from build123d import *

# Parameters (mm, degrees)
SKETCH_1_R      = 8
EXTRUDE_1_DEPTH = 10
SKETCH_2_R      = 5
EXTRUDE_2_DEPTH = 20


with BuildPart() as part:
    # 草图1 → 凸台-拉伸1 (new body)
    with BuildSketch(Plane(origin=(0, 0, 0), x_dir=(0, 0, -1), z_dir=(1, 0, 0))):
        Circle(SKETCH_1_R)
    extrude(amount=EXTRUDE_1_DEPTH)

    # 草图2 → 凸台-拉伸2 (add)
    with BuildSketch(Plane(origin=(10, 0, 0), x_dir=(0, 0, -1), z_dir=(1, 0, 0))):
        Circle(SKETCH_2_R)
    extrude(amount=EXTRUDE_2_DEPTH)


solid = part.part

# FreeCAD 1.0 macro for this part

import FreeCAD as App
import Part
import Sketcher

V = App.Vector

doc = App.newDocument("Part")
body = doc.addObject("PartDesign::Body", "Body")

# Sketch on YZ plane
sketch1 = doc.addObject("Sketcher::SketchObject", "Sketch")
body.addObject(sketch1)
sketch1.AttachmentSupport = (doc.YZ_Plane, [""])
sketch1.MapMode = "FlatFace"
sketch1.addGeometry(Part.Circle(V(0, 0, 0), V(0, 0, 1), 8), False)
sketch1.addConstraint(Sketcher.Constraint("Coincident", 0, 3, -1, 1))
sketch1.addConstraint(Sketcher.Constraint("Diameter", 0, 16.0))
pad1 = doc.addObject("PartDesign::Pad", "Pad")
body.addObject(pad1)
pad1.Profile = sketch1
pad1.Length = 10

# Sketch on YZ plane
sketch2 = doc.addObject("Sketcher::SketchObject", "Sketch001")
body.addObject(sketch2)
sketch2.AttachmentSupport = (doc.YZ_Plane, [""])
sketch2.MapMode = "FlatFace"
sketch2.AttachmentOffset = App.Placement(V(0, 0, 10), App.Rotation())
sketch2.addGeometry(Part.Circle(V(0, 0, 0), V(0, 0, 1), 5), False)
sketch2.addConstraint(Sketcher.Constraint("Coincident", 0, 3, -1, 1))
sketch2.addConstraint(Sketcher.Constraint("Diameter", 0, 10.0))
pad2 = doc.addObject("PartDesign::Pad", "Pad001")
body.addObject(pad2)
pad2.Profile = sketch2
pad2.Length = 20

doc.recompute()
